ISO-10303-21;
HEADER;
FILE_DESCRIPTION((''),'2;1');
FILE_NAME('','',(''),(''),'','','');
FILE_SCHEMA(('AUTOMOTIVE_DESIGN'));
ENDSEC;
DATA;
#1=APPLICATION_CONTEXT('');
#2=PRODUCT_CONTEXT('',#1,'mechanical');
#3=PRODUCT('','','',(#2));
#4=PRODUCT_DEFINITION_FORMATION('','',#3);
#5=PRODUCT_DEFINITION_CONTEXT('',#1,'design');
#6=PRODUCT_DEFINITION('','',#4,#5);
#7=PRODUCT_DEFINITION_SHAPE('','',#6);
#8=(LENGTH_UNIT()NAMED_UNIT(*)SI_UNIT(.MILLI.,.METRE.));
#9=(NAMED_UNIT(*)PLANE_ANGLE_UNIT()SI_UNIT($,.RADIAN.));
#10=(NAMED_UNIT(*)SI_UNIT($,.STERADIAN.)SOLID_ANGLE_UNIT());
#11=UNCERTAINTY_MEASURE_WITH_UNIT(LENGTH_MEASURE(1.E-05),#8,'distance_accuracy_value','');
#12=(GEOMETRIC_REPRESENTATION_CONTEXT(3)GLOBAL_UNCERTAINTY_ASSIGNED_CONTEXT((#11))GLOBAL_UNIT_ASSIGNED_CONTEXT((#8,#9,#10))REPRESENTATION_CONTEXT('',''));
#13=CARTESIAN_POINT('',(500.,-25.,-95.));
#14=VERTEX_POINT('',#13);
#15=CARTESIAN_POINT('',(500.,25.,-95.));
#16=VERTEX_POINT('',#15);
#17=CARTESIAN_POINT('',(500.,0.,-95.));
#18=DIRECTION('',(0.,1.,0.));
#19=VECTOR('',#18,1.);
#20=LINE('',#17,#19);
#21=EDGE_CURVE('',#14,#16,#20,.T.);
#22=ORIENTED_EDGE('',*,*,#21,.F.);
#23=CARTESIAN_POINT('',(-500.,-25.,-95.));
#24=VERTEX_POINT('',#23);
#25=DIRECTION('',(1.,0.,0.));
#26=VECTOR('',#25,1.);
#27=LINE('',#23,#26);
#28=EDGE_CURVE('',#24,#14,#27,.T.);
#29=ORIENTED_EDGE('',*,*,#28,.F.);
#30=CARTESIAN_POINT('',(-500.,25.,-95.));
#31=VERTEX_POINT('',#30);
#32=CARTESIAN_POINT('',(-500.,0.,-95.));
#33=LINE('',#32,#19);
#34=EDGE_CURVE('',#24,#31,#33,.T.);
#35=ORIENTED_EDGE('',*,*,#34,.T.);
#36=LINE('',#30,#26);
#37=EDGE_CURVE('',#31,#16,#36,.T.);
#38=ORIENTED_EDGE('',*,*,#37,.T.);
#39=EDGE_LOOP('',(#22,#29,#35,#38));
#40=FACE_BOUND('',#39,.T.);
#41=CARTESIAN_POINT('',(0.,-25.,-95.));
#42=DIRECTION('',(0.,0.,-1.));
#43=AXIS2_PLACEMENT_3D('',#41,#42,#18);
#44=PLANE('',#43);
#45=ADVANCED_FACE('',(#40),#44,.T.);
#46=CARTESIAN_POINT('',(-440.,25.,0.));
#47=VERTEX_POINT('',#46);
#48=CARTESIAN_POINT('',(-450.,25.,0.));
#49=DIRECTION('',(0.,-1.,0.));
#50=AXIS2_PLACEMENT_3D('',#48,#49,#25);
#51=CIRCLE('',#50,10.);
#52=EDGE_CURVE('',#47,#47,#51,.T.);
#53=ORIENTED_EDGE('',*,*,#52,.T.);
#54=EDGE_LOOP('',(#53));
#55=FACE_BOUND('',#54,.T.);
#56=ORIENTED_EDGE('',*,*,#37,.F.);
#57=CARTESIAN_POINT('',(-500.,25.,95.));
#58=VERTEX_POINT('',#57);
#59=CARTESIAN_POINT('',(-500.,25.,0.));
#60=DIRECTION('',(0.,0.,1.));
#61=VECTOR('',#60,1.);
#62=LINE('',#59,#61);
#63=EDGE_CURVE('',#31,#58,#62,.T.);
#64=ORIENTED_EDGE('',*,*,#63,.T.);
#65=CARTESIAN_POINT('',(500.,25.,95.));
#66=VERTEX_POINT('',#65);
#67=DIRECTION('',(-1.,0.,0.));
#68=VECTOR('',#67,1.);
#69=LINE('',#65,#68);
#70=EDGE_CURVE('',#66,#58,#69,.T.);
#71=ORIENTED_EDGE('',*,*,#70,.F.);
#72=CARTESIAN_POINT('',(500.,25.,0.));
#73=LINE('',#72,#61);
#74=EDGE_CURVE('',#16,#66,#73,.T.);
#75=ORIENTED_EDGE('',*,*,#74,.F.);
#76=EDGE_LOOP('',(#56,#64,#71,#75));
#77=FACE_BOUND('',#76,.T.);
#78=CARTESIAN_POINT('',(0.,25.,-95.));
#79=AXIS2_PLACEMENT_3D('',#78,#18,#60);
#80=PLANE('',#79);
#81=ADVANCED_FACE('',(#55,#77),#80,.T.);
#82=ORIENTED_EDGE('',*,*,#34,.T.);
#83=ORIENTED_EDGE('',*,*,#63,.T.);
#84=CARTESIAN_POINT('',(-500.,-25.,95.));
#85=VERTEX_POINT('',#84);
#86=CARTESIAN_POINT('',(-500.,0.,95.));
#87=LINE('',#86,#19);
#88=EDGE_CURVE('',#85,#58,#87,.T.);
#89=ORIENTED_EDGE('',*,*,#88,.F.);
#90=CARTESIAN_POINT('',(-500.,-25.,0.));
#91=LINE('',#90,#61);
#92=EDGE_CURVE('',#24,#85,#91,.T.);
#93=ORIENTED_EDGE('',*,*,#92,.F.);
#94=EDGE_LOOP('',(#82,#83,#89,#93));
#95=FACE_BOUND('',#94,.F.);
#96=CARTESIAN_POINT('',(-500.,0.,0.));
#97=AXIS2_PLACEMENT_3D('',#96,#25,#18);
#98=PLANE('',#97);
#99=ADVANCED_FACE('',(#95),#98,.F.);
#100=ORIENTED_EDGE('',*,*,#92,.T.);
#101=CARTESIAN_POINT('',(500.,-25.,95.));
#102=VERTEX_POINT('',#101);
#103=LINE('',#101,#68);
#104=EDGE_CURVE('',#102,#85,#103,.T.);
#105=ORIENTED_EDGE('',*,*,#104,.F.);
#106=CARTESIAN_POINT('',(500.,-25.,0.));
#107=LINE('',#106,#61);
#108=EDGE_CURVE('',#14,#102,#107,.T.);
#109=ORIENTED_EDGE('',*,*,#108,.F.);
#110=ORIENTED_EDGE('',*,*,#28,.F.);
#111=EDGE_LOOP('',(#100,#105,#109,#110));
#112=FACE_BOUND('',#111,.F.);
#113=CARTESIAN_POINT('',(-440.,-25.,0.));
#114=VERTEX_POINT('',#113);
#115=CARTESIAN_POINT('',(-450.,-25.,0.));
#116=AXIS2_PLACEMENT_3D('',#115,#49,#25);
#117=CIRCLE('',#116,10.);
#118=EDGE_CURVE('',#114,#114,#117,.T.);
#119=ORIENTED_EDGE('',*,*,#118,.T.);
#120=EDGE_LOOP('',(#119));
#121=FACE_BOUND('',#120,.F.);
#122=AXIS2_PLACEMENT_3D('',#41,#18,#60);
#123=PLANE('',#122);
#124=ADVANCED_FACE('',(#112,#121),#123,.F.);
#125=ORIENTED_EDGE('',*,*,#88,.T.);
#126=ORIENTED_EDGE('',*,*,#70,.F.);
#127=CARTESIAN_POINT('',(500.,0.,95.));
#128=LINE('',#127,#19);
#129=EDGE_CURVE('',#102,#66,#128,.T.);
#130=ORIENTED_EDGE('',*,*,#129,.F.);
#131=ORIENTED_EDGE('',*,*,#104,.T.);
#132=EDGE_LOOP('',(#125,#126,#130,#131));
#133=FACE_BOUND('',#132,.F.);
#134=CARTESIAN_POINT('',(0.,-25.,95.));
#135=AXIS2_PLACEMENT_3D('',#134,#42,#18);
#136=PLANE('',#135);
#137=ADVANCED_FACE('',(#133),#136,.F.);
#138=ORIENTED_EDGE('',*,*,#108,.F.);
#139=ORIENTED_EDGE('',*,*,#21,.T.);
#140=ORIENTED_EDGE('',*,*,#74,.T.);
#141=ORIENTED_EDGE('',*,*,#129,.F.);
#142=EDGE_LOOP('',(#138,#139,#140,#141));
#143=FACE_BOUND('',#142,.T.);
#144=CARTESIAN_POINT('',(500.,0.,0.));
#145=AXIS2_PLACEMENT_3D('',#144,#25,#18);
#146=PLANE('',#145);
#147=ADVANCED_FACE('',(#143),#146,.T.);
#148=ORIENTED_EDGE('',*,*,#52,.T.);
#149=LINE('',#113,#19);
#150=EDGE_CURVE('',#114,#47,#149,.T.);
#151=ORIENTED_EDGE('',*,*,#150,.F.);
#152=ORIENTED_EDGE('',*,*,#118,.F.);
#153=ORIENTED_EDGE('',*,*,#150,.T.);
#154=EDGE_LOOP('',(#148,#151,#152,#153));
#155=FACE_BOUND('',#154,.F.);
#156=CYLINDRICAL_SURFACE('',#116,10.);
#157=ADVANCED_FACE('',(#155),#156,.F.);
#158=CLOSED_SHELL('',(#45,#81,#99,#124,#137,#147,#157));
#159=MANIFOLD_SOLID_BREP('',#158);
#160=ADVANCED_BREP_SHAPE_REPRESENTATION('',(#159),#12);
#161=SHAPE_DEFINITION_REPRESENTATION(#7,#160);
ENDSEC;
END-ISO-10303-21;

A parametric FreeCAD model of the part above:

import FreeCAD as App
import Part
import Sketcher
from FreeCAD import Vector

doc = App.newDocument("Part")
params = doc.addObject("Spreadsheet::Sheet", "Params")
for row, (alias, value) in enumerate([
    ("sketch1_width", "50 mm"),
    ("sketch1_height", "190 mm"),
    ("pad1_length", "1000 mm"),
    ("sketch2_diameter", "20 mm"),
], start=1):
    params.set(f"A{row}", alias)
    params.set(f"B{row}", "=" + value)
    params.setAlias(f"B{row}", alias)

body = doc.addObject("PartDesign::Body", "Body")

sketch1 = body.newObject("Sketcher::SketchObject", "Sketch")
sketch1.AttachmentSupport = (doc.getObject("YZ_Plane"), [""])
sketch1.MapMode = "FlatFace"
sketch1.addGeometry(Part.LineSegment(Vector(-25, 95, 0), Vector(-25, -95, 0)), False)
sketch1.addGeometry(Part.LineSegment(Vector(-25, -95, 0), Vector(25, -95, 0)), False)
sketch1.addGeometry(Part.LineSegment(Vector(25, -95, 0), Vector(25, 95, 0)), False)
sketch1.addGeometry(Part.LineSegment(Vector(25, 95, 0), Vector(-25, 95, 0)), False)
sketch1.addConstraint(Sketcher.Constraint("Coincident", 0, 2, 1, 1))
sketch1.addConstraint(Sketcher.Constraint("Coincident", 1, 2, 2, 1))
sketch1.addConstraint(Sketcher.Constraint("Coincident", 2, 2, 3, 1))
sketch1.addConstraint(Sketcher.Constraint("Coincident", 3, 2, 0, 1))
sketch1.addConstraint(Sketcher.Constraint("Vertical", 0))
sketch1.addConstraint(Sketcher.Constraint("Horizontal", 1))
sketch1.addConstraint(Sketcher.Constraint("Vertical", 2))
sketch1.addConstraint(Sketcher.Constraint("Horizontal", 3))
sketch1.addConstraint(Sketcher.Constraint("Symmetric", 0, 2, 2, 2, -1, 1))
sketch1.addConstraint(Sketcher.Constraint("DistanceX", 1, 1, 1, 2, 50.0))
sketch1.addConstraint(Sketcher.Constraint("DistanceY", 0, 2, 0, 1, 190.0))
sketch1.setExpression("Constraints[9]", "Params.sketch1_width")
sketch1.setExpression("Constraints[10]", "Params.sketch1_height")
pad1 = body.newObject("PartDesign::Pad", "Pad")
pad1.Profile = sketch1
pad1.setExpression("Length", "Params.pad1_length")
pad1.Midplane = True

sketch2 = body.newObject("Sketcher::SketchObject", "Sketch001")
sketch2.AttachmentSupport = (doc.getObject("XZ_Plane"), [""])
sketch2.MapMode = "FlatFace"
sketch2.AttachmentOffset = App.Placement(Vector(0, 0, 25), App.Rotation())
sketch2.addGeometry(Part.Circle(Vector(-450, 0, 0), Vector(0, 0, 1), 10), False)
sketch2.addConstraint(Sketcher.Constraint("PointOnObject", 0, 3, -1))
sketch2.addConstraint(Sketcher.Constraint("Diameter", 0, 20.0))
sketch2.addConstraint(Sketcher.Constraint("DistanceX", 0, 3, -1, 1, 450.0))
sketch2.setExpression("Constraints[1]", "Params.sketch2_diameter")
pocket1 = body.newObject("PartDesign::Pocket", "Pocket")
pocket1.Profile = sketch2
pocket1.Type = "ThroughAll"

doc.recompute()
